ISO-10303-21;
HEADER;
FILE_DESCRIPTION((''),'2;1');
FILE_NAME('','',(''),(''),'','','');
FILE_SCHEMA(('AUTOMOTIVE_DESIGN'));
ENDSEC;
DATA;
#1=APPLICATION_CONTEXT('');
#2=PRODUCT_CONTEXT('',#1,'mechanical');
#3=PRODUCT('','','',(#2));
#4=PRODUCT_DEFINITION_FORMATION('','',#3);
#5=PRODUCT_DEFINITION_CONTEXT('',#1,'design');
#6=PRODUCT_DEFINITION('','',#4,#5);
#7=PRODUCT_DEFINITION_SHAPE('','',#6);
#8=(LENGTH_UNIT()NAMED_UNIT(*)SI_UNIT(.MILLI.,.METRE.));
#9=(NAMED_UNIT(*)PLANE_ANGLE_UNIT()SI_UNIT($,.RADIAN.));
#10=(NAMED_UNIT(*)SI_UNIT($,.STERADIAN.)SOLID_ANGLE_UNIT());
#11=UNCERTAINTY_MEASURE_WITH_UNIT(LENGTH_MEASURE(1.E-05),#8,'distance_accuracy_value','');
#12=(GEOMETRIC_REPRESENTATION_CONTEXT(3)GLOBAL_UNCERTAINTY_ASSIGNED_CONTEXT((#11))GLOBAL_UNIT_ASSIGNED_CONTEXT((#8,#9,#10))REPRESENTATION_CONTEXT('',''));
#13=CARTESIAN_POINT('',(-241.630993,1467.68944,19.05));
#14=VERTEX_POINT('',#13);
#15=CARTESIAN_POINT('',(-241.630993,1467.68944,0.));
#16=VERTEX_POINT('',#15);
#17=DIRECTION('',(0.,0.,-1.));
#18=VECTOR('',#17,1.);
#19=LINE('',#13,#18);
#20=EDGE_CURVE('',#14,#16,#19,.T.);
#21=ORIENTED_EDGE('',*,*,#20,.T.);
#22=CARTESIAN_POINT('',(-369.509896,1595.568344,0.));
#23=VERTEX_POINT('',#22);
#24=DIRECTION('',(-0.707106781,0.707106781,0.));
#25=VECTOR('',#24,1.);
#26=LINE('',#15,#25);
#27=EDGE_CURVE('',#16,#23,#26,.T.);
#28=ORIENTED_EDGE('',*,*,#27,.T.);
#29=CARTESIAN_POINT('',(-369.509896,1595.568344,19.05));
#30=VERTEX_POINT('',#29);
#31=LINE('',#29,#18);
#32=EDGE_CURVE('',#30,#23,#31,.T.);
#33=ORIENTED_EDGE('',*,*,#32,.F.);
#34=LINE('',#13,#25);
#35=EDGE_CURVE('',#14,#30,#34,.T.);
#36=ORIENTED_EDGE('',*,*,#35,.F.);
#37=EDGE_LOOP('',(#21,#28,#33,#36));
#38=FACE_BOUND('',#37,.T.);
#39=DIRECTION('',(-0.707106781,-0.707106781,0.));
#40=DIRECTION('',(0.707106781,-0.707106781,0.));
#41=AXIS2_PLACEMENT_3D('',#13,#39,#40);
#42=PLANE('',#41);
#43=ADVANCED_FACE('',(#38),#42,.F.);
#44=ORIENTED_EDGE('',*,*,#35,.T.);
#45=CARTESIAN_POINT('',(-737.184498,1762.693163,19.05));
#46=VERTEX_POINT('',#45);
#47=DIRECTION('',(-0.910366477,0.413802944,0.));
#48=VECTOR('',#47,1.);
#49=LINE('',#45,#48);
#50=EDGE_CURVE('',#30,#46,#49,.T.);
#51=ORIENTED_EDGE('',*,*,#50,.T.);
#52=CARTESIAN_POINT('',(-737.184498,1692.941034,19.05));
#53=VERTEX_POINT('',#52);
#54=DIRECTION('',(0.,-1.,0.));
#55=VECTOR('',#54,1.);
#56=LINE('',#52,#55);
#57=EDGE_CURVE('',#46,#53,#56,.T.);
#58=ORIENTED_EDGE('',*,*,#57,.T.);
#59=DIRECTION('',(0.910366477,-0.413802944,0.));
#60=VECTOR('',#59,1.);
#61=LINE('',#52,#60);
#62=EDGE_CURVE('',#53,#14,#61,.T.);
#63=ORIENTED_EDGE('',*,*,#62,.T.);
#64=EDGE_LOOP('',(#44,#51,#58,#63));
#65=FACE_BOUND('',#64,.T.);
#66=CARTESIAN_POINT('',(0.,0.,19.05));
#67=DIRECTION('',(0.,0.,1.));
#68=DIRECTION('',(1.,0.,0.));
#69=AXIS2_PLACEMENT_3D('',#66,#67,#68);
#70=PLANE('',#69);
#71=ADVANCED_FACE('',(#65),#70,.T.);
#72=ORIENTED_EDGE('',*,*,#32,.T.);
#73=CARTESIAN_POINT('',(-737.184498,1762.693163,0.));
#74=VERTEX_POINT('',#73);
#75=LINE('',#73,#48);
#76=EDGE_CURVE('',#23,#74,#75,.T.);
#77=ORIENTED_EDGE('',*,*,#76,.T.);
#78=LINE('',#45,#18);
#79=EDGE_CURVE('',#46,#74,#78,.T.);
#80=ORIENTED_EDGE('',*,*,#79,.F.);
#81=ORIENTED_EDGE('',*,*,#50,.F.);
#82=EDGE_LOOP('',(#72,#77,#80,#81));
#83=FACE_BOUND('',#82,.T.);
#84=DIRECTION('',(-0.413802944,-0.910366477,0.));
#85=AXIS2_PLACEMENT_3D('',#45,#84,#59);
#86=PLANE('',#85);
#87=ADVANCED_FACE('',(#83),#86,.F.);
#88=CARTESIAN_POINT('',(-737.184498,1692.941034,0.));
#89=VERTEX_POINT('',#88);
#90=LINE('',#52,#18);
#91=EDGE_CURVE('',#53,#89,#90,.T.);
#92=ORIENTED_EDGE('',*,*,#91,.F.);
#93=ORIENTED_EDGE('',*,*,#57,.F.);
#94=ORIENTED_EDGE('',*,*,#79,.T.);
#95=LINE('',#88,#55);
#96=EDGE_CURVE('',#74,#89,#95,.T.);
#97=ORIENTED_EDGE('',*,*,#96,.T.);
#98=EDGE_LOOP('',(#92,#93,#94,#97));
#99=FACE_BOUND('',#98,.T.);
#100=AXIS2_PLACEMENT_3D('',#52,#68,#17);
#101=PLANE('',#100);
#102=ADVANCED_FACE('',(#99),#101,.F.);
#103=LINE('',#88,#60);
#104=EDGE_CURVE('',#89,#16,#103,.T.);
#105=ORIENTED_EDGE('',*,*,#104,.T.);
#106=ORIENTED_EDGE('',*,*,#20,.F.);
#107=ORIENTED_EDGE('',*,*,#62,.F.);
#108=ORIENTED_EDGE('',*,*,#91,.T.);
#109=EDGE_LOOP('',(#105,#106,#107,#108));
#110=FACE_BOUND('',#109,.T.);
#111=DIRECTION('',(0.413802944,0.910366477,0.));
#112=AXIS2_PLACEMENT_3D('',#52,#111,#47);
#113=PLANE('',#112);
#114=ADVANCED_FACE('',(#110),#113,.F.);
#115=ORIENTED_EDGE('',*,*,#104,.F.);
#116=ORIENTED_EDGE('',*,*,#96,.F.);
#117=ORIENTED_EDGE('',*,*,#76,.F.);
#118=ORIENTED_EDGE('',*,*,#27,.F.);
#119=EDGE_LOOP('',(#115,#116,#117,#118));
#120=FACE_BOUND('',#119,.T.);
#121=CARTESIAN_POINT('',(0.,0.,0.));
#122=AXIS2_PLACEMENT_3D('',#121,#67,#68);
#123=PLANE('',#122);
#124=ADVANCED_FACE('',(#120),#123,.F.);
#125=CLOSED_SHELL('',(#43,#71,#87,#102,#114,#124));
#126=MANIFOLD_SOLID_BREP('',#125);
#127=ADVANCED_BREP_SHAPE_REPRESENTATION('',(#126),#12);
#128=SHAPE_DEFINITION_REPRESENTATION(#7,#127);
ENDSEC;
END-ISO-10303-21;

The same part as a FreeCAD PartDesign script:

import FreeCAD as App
import Part
import Sketcher
Q = App.Units.Quantity

doc = App.newDocument("Part")
params = doc.addObject("Spreadsheet::Sheet", "Params")
for row, (alias, value) in enumerate([
    ("pad1_length", "0.75 in"),
], start=1):
    params.set(f"A{row}", alias)
    params.set(f"B{row}", "=" + value)
    params.setAlias(f"B{row}", alias)

body = doc.addObject("PartDesign::Body", "Body")

sketch1 = body.newObject("Sketcher::SketchObject", "Sketch")
sketch1.AttachmentSupport = (doc.getObject("XY_Plane"), [""])
sketch1.MapMode = "FlatFace"
sketch1.addGeometry(Part.LineSegment(App.Vector(-737, 1763, 0), App.Vector(-737, 1693, 0)), False)
sketch1.addGeometry(Part.LineSegment(App.Vector(-737, 1693, 0), App.Vector(-242, 1468, 0)), False)
sketch1.addGeometry(Part.LineSegment(App.Vector(-242, 1468, 0), App.Vector(-370, 1596, 0)), False)
sketch1.addGeometry(Part.LineSegment(App.Vector(-370, 1596, 0), App.Vector(-737, 1763, 0)), False)
sketch1.addConstraint(Sketcher.Constraint("Coincident", 0, 2, 1, 1))
sketch1.addConstraint(Sketcher.Constraint("Coincident", 1, 2, 2, 1))
sketch1.addConstraint(Sketcher.Constraint("Coincident", 2, 2, 3, 1))
sketch1.addConstraint(Sketcher.Constraint("Coincident", 3, 2, 0, 1))
sketch1.addConstraint(Sketcher.Constraint("Vertical", 0))
sketch1.addConstraint(Sketcher.Constraint("Parallel", 1, 3))
sketch1.addConstraint(Sketcher.Constraint("Angle", 2, Q("135 deg")))
sketch1.addConstraint(Sketcher.Constraint("DistanceY", 0, 2, 0, 1, 69.752129))
sketch1.addConstraint(Sketcher.Constraint("DistanceX", 0, 2, -1, 1, 737.184498))
sketch1.addConstraint(Sketcher.Constraint("DistanceX", 0, 2, 2, 2, 367.674602))
sketch1.addConstraint(Sketcher.Constraint("Distance", 1, 544.345071))
sketch1.addConstraint(Sketcher.Constraint("DistanceY", -1, 1, 1, 2, 1467.68944))
pad1 = body.newObject("PartDesign::Pad", "Pad")
pad1.Profile = sketch1
pad1.setExpression("Length", "Params.pad1_length")

doc.recompute()
